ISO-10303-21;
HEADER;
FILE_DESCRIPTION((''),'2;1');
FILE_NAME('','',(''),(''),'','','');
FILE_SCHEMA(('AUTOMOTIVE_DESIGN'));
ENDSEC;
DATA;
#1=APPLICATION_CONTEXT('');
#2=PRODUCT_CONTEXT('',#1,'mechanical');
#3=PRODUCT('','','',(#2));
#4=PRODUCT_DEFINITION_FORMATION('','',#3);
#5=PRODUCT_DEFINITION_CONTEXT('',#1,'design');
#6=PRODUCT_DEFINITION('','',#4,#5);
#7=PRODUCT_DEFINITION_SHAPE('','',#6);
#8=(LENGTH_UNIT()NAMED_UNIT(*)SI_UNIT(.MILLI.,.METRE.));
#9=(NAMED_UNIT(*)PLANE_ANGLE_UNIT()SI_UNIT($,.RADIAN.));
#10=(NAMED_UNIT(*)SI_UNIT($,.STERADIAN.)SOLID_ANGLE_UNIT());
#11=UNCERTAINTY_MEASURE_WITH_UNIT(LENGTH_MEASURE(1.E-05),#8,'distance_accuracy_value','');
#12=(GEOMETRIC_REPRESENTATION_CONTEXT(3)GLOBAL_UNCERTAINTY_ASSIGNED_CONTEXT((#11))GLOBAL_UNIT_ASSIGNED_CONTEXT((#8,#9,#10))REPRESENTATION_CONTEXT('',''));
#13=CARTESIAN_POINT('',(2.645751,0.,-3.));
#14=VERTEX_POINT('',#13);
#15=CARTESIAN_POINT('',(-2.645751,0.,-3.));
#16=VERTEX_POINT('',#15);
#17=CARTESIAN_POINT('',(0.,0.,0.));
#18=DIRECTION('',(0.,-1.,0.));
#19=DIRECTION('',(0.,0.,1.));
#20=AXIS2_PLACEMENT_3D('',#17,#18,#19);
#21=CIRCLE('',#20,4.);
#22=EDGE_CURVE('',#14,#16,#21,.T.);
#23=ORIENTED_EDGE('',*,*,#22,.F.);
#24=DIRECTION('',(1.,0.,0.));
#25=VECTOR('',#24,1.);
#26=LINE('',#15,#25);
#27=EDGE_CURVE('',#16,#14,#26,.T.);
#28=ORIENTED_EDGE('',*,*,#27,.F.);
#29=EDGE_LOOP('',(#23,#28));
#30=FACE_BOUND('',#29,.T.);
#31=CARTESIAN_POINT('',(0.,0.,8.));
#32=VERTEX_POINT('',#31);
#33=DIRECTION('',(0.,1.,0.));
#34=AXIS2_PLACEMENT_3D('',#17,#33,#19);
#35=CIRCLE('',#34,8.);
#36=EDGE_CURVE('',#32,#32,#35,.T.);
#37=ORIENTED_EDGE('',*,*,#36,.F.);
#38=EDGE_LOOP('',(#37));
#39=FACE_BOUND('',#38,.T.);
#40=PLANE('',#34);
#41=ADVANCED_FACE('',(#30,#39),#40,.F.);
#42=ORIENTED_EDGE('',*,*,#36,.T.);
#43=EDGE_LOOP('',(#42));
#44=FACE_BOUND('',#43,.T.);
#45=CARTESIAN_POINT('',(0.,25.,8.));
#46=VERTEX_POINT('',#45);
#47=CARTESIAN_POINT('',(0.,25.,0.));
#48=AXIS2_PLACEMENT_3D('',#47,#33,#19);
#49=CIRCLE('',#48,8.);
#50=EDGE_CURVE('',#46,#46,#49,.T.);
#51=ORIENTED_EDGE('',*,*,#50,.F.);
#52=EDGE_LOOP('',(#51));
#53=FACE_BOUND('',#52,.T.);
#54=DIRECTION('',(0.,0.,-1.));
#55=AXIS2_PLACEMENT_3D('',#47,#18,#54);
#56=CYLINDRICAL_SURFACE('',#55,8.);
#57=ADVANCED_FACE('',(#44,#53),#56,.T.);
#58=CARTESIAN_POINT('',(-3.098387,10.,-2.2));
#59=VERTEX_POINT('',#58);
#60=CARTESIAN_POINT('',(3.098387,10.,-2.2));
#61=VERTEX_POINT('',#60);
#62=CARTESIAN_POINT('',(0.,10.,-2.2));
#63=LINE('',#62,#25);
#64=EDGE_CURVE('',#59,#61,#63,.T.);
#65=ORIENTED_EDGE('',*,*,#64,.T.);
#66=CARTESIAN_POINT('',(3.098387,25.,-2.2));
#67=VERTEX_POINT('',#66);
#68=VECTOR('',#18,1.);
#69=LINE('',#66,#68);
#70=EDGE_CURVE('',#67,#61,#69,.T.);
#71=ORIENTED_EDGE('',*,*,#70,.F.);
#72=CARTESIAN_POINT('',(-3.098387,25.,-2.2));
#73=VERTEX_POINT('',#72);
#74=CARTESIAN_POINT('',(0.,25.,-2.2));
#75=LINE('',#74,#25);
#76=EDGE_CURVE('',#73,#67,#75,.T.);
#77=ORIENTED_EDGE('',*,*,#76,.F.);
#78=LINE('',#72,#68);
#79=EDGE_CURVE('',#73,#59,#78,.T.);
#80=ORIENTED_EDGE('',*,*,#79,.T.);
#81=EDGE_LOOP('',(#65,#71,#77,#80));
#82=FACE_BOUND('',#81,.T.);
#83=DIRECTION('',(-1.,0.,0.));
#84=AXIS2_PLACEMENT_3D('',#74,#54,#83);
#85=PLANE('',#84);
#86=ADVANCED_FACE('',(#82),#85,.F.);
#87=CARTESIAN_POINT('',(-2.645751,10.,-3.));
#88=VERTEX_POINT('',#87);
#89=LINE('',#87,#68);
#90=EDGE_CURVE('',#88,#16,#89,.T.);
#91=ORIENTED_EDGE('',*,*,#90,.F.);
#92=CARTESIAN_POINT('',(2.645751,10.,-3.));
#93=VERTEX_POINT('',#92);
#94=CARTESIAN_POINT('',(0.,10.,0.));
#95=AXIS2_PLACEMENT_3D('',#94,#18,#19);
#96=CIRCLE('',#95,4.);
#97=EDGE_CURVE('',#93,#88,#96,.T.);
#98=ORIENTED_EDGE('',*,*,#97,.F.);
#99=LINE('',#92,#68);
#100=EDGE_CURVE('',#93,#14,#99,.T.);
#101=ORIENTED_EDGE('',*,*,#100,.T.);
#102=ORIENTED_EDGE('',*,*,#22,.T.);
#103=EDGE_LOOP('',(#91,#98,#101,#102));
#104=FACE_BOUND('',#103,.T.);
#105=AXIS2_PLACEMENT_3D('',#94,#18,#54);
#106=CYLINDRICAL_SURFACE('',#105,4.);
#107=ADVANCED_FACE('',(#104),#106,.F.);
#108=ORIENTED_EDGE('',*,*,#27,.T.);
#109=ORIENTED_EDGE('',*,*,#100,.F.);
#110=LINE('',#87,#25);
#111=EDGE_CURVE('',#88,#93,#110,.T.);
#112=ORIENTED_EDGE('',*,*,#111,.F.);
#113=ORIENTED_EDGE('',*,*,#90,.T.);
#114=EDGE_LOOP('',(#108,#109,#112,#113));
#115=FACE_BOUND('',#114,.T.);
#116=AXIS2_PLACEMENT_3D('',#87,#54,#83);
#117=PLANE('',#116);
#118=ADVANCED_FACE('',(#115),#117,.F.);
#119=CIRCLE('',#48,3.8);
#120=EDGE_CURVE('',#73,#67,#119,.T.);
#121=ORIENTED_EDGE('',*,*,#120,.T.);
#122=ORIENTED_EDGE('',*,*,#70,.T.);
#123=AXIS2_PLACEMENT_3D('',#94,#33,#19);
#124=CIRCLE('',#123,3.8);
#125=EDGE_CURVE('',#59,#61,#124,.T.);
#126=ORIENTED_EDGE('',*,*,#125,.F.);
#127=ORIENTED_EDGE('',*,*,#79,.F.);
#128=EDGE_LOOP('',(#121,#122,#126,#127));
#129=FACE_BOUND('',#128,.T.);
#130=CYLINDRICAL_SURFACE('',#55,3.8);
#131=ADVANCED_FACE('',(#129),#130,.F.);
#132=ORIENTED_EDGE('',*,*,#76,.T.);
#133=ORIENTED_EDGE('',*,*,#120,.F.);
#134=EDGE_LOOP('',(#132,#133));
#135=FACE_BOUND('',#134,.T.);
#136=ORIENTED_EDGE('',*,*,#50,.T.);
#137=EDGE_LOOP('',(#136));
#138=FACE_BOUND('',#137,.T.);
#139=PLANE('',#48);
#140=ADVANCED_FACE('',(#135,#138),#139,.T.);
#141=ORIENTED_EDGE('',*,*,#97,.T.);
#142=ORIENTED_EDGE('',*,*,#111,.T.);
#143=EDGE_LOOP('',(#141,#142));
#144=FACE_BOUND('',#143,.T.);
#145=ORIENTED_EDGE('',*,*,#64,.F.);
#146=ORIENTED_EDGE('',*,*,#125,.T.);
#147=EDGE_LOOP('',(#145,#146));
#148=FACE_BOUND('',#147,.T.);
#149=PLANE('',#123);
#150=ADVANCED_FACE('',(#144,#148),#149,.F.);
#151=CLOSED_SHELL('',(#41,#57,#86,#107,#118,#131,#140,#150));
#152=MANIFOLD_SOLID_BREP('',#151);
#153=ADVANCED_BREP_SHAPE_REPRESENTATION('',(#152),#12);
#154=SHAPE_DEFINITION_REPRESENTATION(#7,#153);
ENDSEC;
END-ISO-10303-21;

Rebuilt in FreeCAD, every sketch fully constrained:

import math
import FreeCAD as App
import Part
import Sketcher

doc = App.newDocument("Part")
body = doc.addObject("PartDesign::Body", "Body")

# Sketch on XZ plane
sketch1 = body.newObject("Sketcher::SketchObject", "Sketch")
sketch1.AttachmentSupport = (doc.getObject("XZ_Plane"), [""])
sketch1.MapMode = "FlatFace"
sketch1.addGeometry(Part.Circle(App.Vector(0, 0, 0), App.Vector(0, 0, 1), 8), False)
sketch1.addGeometry(Part.ArcOfCircle(Part.Circle(App.Vector(0, 0, 0), App.Vector(0, 0, 1), 3.8), math.radians(-35.37654), math.radians(215.37654)), False)
sketch1.addGeometry(Part.LineSegment(App.Vector(-3.098387, -2.2, 0), App.Vector(3.098387, -2.2, 0)), False)
sketch1.addConstraint(Sketcher.Constraint("Coincident", 1, 1, 2, 2))
sketch1.addConstraint(Sketcher.Constraint("Coincident", 2, 1, 1, 2))
sketch1.addConstraint(Sketcher.Constraint("Horizontal", 2))
sketch1.addConstraint(Sketcher.Constraint("Coincident", 0, 3, -1, 1))
sketch1.addConstraint(Sketcher.Constraint("Coincident", 1, 3, -1, 1))
sketch1.addConstraint(Sketcher.Constraint("Diameter", 0, 16.0))
sketch1.addConstraint(Sketcher.Constraint("Radius", 1, 3.8))
sketch1.addConstraint(Sketcher.Constraint("DistanceY", 1, 1, -1, 1, 2.2))
pad1 = body.newObject("PartDesign::Pad", "Pad")
pad1.Profile = sketch1
pad1.Length = 25
pad1.Reversed = True

# Sketch on XZ plane
sketch2 = body.newObject("Sketcher::SketchObject", "Sketch001")
sketch2.AttachmentSupport = (doc.getObject("XZ_Plane"), [""])
sketch2.MapMode = "FlatFace"
sketch2.addGeometry(Part.LineSegment(App.Vector(-2.645751, -3, 0), App.Vector(2.645751, -3, 0)), False)
sketch2.addGeometry(Part.ArcOfCircle(Part.Circle(App.Vector(0, 0, 0), App.Vector(0, 0, 1), 4), math.radians(-48.590378), math.radians(228.590378)), False)
sketch2.addConstraint(Sketcher.Constraint("Coincident", 0, 1, 1, 2))
sketch2.addConstraint(Sketcher.Constraint("Coincident", 1, 1, 0, 2))
sketch2.addConstraint(Sketcher.Constraint("Horizontal", 0))
sketch2.addConstraint(Sketcher.Constraint("Coincident", 1, 3, -1, 1))
sketch2.addConstraint(Sketcher.Constraint("Radius", 1, 4.0))
sketch2.addConstraint(Sketcher.Constraint("DistanceY", 0, 1, -1, 1, 3.0))
pocket1 = body.newObject("PartDesign::Pocket", "Pocket")
pocket1.Profile = sketch2
pocket1.Length = 10

doc.recompute()
